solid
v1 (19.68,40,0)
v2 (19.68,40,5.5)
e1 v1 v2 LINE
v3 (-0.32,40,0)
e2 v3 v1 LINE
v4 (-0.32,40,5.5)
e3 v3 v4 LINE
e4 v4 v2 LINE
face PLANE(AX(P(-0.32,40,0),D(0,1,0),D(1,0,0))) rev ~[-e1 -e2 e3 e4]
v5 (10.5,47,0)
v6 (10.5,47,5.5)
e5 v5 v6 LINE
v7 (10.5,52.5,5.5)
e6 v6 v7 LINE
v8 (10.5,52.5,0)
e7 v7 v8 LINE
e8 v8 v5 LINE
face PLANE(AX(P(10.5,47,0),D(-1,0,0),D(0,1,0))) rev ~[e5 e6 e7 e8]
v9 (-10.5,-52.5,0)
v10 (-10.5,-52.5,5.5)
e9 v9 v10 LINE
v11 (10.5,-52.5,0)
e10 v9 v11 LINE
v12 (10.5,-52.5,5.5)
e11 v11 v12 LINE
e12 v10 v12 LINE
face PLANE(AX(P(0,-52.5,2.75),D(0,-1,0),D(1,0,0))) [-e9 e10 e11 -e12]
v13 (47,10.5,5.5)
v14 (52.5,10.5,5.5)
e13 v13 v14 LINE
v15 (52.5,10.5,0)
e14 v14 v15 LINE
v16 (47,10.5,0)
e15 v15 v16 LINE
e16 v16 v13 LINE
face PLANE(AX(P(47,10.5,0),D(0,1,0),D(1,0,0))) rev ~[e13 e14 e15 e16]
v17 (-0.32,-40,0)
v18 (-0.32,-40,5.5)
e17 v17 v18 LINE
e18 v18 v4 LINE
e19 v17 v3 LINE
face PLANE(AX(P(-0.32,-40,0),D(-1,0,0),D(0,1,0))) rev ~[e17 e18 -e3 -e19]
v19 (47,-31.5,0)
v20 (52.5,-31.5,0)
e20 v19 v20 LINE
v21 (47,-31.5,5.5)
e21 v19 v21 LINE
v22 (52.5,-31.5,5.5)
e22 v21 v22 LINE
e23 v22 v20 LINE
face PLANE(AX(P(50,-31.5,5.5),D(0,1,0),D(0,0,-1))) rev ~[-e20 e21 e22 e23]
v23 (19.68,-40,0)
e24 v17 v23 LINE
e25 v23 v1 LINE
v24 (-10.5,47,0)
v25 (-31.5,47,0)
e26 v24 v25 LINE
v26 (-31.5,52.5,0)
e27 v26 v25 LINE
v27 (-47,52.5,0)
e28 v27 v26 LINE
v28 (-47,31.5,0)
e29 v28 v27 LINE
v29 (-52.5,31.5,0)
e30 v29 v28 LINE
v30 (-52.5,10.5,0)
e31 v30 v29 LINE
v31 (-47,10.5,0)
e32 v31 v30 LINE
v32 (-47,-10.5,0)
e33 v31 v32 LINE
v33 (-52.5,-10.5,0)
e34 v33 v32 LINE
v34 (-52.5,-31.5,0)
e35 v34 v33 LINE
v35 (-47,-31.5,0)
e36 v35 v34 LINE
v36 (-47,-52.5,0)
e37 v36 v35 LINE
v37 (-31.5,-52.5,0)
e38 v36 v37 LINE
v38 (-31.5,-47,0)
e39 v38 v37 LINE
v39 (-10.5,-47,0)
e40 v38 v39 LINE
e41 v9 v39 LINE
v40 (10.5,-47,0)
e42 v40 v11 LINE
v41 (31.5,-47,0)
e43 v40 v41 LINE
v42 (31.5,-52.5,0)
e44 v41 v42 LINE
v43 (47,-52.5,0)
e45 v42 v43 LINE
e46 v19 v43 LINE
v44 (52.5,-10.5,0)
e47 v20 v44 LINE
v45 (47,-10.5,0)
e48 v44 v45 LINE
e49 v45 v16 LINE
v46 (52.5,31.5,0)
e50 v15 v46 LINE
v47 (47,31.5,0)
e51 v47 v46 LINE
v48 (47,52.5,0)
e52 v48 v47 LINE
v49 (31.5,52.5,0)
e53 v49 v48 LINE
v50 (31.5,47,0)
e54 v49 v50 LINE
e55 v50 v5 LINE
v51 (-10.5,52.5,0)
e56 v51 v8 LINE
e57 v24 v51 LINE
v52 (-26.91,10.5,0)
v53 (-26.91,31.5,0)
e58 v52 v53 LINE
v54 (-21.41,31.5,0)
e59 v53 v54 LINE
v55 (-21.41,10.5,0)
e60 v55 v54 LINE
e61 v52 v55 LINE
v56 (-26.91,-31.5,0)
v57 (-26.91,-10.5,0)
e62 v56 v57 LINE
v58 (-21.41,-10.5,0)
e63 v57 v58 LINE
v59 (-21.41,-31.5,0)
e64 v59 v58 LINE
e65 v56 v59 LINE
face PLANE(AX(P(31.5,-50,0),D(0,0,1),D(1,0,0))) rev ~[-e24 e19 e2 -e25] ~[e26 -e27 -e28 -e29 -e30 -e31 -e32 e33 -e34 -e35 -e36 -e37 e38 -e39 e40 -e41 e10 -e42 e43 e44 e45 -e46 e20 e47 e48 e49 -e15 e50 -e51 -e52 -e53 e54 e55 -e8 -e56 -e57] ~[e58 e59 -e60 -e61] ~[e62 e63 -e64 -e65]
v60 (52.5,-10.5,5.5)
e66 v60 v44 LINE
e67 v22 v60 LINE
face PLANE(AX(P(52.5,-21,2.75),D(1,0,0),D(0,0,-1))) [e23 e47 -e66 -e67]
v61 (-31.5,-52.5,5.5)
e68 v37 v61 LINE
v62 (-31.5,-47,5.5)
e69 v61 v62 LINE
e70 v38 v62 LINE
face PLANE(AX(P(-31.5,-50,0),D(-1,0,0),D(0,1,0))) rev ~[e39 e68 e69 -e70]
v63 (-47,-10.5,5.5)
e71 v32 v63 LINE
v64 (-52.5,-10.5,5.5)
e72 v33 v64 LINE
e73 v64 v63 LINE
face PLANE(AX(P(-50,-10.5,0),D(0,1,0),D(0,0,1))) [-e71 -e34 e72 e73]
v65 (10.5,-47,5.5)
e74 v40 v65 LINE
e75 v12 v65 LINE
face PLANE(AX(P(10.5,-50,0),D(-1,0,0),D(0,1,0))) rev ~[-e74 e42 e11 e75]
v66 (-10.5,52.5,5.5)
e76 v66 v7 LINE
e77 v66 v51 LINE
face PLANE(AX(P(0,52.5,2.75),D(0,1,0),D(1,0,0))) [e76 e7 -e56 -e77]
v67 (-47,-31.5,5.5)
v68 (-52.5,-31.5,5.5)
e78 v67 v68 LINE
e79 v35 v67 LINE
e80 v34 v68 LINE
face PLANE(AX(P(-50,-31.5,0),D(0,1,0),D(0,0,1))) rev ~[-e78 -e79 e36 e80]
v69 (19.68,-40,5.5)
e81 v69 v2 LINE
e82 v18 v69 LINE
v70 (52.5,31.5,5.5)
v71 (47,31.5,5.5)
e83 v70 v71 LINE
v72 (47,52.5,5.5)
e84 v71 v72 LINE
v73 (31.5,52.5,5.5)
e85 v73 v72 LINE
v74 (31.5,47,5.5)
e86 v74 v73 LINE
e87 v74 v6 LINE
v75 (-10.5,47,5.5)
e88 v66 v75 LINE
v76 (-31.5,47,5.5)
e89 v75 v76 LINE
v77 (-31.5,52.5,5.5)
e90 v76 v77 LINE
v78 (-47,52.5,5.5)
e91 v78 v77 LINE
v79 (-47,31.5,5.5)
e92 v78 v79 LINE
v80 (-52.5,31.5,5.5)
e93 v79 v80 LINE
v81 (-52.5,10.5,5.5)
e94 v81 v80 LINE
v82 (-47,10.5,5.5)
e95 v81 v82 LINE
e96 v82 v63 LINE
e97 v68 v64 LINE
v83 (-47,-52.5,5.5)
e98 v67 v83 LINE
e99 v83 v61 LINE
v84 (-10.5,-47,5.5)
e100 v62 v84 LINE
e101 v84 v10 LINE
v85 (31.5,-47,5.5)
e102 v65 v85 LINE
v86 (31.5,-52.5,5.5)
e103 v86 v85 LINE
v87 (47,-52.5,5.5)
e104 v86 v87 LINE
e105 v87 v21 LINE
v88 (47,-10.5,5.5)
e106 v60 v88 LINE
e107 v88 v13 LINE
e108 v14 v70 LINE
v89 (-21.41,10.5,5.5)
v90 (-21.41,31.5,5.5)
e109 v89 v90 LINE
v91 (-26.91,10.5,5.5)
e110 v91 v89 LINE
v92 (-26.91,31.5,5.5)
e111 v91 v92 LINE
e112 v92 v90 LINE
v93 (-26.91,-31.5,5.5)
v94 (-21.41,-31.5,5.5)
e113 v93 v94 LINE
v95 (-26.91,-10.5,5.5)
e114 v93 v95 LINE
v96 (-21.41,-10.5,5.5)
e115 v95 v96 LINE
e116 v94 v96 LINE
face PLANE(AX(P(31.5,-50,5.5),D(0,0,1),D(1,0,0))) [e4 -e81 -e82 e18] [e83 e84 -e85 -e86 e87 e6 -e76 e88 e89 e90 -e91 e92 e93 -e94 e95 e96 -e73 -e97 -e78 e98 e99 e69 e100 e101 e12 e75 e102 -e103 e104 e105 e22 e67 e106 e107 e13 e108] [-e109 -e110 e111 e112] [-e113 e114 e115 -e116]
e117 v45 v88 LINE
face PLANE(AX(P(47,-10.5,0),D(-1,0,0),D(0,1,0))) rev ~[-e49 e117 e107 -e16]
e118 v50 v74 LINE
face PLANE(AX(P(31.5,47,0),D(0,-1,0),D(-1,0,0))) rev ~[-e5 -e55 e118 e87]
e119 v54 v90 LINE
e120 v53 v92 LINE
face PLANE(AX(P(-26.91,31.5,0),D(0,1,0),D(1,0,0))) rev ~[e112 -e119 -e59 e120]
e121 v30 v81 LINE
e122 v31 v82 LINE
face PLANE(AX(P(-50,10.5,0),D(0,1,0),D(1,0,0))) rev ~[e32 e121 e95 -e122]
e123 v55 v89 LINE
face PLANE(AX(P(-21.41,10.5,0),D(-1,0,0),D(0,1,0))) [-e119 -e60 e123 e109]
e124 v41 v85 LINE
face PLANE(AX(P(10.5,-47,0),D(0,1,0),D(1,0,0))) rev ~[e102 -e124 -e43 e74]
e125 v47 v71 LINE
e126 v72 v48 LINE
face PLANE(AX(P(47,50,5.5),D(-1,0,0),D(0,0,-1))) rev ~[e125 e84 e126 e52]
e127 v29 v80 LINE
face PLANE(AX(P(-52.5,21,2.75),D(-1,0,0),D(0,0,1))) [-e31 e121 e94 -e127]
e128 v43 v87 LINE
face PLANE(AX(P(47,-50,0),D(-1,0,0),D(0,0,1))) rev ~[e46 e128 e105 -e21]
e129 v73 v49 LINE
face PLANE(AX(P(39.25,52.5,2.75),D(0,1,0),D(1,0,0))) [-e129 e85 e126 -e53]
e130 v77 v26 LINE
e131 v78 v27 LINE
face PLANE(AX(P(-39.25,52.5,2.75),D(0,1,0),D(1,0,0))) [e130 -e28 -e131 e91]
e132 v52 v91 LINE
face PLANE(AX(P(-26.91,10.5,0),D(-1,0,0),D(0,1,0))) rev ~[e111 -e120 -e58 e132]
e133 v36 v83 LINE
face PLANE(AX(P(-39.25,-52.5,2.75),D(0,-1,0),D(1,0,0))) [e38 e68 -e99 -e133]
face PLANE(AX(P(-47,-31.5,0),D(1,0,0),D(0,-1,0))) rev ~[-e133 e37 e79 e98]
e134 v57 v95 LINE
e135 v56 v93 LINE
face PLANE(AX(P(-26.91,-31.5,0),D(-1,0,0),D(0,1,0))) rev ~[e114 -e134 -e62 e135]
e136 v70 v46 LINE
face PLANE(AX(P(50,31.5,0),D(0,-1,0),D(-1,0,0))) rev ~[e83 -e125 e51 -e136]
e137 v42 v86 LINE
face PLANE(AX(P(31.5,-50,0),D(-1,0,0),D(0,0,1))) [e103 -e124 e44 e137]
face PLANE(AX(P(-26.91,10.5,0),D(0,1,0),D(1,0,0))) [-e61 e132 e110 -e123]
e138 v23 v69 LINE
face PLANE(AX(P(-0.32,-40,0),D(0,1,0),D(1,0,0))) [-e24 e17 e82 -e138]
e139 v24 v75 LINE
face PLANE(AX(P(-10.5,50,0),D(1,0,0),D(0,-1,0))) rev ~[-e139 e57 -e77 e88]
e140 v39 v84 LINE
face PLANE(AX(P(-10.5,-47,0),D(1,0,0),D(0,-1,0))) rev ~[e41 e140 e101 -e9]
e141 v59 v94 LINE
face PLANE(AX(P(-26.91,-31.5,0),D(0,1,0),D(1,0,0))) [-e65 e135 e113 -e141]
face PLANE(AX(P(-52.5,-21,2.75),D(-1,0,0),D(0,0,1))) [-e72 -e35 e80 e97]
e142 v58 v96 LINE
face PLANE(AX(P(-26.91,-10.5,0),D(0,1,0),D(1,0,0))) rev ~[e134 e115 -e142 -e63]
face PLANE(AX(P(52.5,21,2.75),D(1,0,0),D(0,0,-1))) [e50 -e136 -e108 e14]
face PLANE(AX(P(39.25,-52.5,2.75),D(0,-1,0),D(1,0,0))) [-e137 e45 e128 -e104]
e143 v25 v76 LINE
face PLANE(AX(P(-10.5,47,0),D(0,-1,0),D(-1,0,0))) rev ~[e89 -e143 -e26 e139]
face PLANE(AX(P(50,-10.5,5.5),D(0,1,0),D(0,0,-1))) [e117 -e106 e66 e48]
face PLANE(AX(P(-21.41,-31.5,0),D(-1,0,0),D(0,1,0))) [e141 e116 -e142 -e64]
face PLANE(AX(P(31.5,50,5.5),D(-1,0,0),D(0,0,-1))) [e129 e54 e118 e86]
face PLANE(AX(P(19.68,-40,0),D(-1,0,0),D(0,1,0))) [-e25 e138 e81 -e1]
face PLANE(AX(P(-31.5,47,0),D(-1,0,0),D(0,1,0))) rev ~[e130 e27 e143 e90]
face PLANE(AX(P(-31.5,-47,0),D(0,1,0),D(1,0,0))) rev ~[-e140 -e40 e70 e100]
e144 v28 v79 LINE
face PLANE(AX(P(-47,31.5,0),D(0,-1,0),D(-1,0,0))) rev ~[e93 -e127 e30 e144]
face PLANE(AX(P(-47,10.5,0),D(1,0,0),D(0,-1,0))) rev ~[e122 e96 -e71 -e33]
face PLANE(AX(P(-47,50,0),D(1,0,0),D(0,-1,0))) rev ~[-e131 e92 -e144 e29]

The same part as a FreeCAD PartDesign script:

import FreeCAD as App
import Part
import Sketcher
from FreeCAD import Vector


def add_polygon(sketch, points):
    """Adds a closed chain of lines whose ends are joined by coincident constraints."""
    first, n = sketch.GeometryCount, len(points)
    for a, b in zip(points, points[1:] + points[:1]):
        sketch.addGeometry(Part.LineSegment(App.Vector(*a, 0), App.Vector(*b, 0)), False)
    for i in range(n):
        sketch.addConstraint(Sketcher.Constraint("Coincident", first + i, 2, first + (i + 1) % n, 1))

doc = App.newDocument("Part")
body = doc.addObject("PartDesign::Body", "Body")

sketch1 = doc.addObject("Sketcher::SketchObject", "Sketch")
body.addObject(sketch1)
sketch1.AttachmentSupport = (doc.XY_Plane, [""])
sketch1.MapMode = "FlatFace"
add_polygon(sketch1, [(-47, 50), (-47, 31.5), (-50, 31.5), (-50, 10.5), (-47, 10.5), (-47, -10.5), (-50, -10.5), (-50, -31.5), (-47, -31.5), (-47, -50), (-31.5, -50), (-31.5, -47), (-10.5, -47), (-10.5, -50), (10.5, -50), (10.5, -47), (31.5, -47), (31.5, -50), (47, -50), (47, -31.5), (50, -31.5), (50, -10.5), (47, -10.5), (47, 10.5), (50, 10.5), (50, 31.5), (47, 31.5), (47, 50), (31.5, 50), (31.5, 47), (10.5, 47), (10.5, 50), (-10.5, 50), (-10.5, 47), (-31.5, 47), (-31.5, 50)])
add_polygon(sketch1, [(-21.4, -31.5), (-26.9, -31.5), (-26.9, -10.5), (-21.4, -10.5)])
add_polygon(sketch1, [(-21.4, 10.5), (-26.9, 10.5), (-26.9, 31.5), (-21.4, 31.5)])
add_polygon(sketch1, [(19.7, -40), (-0.3, -40), (-0.3, 40), (19.7, 40)])
sketch1.addConstraint(Sketcher.Constraint("Vertical", 0))
sketch1.addConstraint(Sketcher.Constraint("Horizontal", 1))
sketch1.addConstraint(Sketcher.Constraint("Vertical", 2))
sketch1.addConstraint(Sketcher.Constraint("Horizontal", 3))
sketch1.addConstraint(Sketcher.Constraint("Vertical", 4))
sketch1.addConstraint(Sketcher.Constraint("Horizontal", 5))
sketch1.addConstraint(Sketcher.Constraint("Vertical", 6))
sketch1.addConstraint(Sketcher.Constraint("Horizontal", 7))
sketch1.addConstraint(Sketcher.Constraint("Vertical", 8))
sketch1.addConstraint(Sketcher.Constraint("Horizontal", 9))
sketch1.addConstraint(Sketcher.Constraint("Vertical", 10))
sketch1.addConstraint(Sketcher.Constraint("Horizontal", 11))
sketch1.addConstraint(Sketcher.Constraint("Vertical", 12))
sketch1.addConstraint(Sketcher.Constraint("Horizontal", 13))
sketch1.addConstraint(Sketcher.Constraint("Vertical", 14))
sketch1.addConstraint(Sketcher.Constraint("Horizontal", 15))
sketch1.addConstraint(Sketcher.Constraint("Vertical", 16))
sketch1.addConstraint(Sketcher.Constraint("Horizontal", 17))
sketch1.addConstraint(Sketcher.Constraint("Vertical", 18))
sketch1.addConstraint(Sketcher.Constraint("Horizontal", 19))
sketch1.addConstraint(Sketcher.Constraint("Vertical", 20))
sketch1.addConstraint(Sketcher.Constraint("Horizontal", 21))
sketch1.addConstraint(Sketcher.Constraint("Vertical", 22))
sketch1.addConstraint(Sketcher.Constraint("Horizontal", 23))
sketch1.addConstraint(Sketcher.Constraint("Vertical", 24))
sketch1.addConstraint(Sketcher.Constraint("Horizontal", 25))
sketch1.addConstraint(Sketcher.Constraint("Vertical", 26))
sketch1.addConstraint(Sketcher.Constraint("Horizontal", 27))
sketch1.addConstraint(Sketcher.Constraint("Vertical", 28))
sketch1.addConstraint(Sketcher.Constraint("Horizontal", 29))
sketch1.addConstraint(Sketcher.Constraint("Vertical", 30))
sketch1.addConstraint(Sketcher.Constraint("Horizontal", 31))
sketch1.addConstraint(Sketcher.Constraint("Vertical", 32))
sketch1.addConstraint(Sketcher.Constraint("Horizontal", 33))
sketch1.addConstraint(Sketcher.Constraint("Vertical", 34))
sketch1.addConstraint(Sketcher.Constraint("Horizontal", 35))
sketch1.addConstraint(Sketcher.Constraint("Horizontal", 36))
sketch1.addConstraint(Sketcher.Constraint("Vertical", 37))
sketch1.addConstraint(Sketcher.Constraint("Horizontal", 38))
sketch1.addConstraint(Sketcher.Constraint("Vertical", 39))
sketch1.addConstraint(Sketcher.Constraint("Horizontal", 40))
sketch1.addConstraint(Sketcher.Constraint("Vertical", 41))
sketch1.addConstraint(Sketcher.Constraint("Horizontal", 42))
sketch1.addConstraint(Sketcher.Constraint("Vertical", 43))
sketch1.addConstraint(Sketcher.Constraint("Horizontal", 44))
sketch1.addConstraint(Sketcher.Constraint("Vertical", 45))
sketch1.addConstraint(Sketcher.Constraint("Horizontal", 46))
sketch1.addConstraint(Sketcher.Constraint("Vertical", 47))
sketch1.addConstraint(Sketcher.Constraint("Symmetric", 0, 2, 18, 2, -1, 1))
sketch1.addConstraint(Sketcher.Constraint("Symmetric", 2, 2, 20, 2, -1, 1))
sketch1.addConstraint(Sketcher.Constraint("Symmetric", 4, 2, 22, 2, -1, 1))
sketch1.addConstraint(Sketcher.Constraint("Symmetric", 6, 2, 24, 2, -1, 1))
sketch1.addConstraint(Sketcher.Constraint("Symmetric", 8, 2, 26, 2, -1, 1))
sketch1.addConstraint(Sketcher.Constraint("Symmetric", 10, 2, 28, 2, -1, 1))
sketch1.addConstraint(Sketcher.Constraint("Symmetric", 12, 2, 30, 2, -1, 1))
sketch1.addConstraint(Sketcher.Constraint("Symmetric", 14, 2, 32, 2, -1, 1))
sketch1.addConstraint(Sketcher.Constraint("Symmetric", 16, 2, 34, 2, -1, 1))
sketch1.addConstraint(Sketcher.Constraint("Symmetric", 11, 2, 14, 2, -2))
sketch1.addConstraint(Sketcher.Constraint("Symmetric", 9, 2, 16, 2, -2))
sketch1.addConstraint(Sketcher.Constraint("Symmetric", 7, 2, 18, 2, -2))
sketch1.addConstraint(Sketcher.Constraint("Symmetric", 5, 2, 20, 2, -2))
sketch1.addConstraint(Sketcher.Constraint("Symmetric", 37, 2, 40, 2, -1))
sketch1.addConstraint(Sketcher.Constraint("Symmetric", 39, 2, 42, 2, -1))
sketch1.addConstraint(Sketcher.Constraint("Horizontal", 9, 2, 12, 2))
sketch1.addConstraint(Sketcher.Constraint("Horizontal", 19, 2, 36, 2))
sketch1.addConstraint(Sketcher.Constraint("Horizontal", 21, 2, 37, 2))
sketch1.addConstraint(Sketcher.Constraint("Vertical", 0, 2, 3, 2))
sketch1.addConstraint(Sketcher.Constraint("Equal", 11, 13))
sketch1.addConstraint(Sketcher.Constraint("Equal", 33, 2))
sketch1.addConstraint(Sketcher.Constraint("Equal", 2, 4))
sketch1.addConstraint(Sketcher.Constraint("Equal", 25, 10))
sketch1.addConstraint(Sketcher.Constraint("DistanceX", 1, 2, 1, 1, 3.0))
sketch1.addConstraint(Sketcher.Constraint("DistanceX", 11, 1, 11, 2, 21.0))
sketch1.addConstraint(Sketcher.Constraint("DistanceX", 44, 2, 44, 1, 20.0))
sketch1.addConstraint(Sketcher.Constraint("DistanceY", 45, 1, 45, 2, 80.0))
sketch1.addConstraint(Sketcher.Constraint("DistanceX", 9, 1, 9, 2, 15.5))
sketch1.addConstraint(Sketcher.Constraint("DistanceX", 36, 2, 36, 1, 5.5))
sketch1.addConstraint(Sketcher.Constraint("DistanceY", 0, 2, 0, 1, 18.5))
sketch1.addConstraint(Sketcher.Constraint("DistanceY", 44, 2, -1, 1, 40.0))
sketch1.addConstraint(Sketcher.Constraint("DistanceX", 36, 2, -1, 1, 26.91))
sketch1.addConstraint(Sketcher.Constraint("DistanceX", 44, 2, -1, 1, 0.32))
pad1 = doc.addObject("PartDesign::Pad", "Pad")
body.addObject(pad1)
pad1.Profile = sketch1
pad1.Length = 5.5

sketch2 = doc.addObject("Sketcher::SketchObject", "Sketch001")
body.addObject(sketch2)
sketch2.AttachmentSupport = (doc.YZ_Plane, [""])
sketch2.MapMode = "FlatFace"
sketch2.AttachmentOffset = App.Placement(Vector(0, 0, -50), App.Rotation())
add_polygon(sketch2, [(-10, 0), (-32, 0), (-32, 6), (-10, 6)])
add_polygon(sketch2, [(32, 0), (10, 0), (10, 6), (32, 6)])
sketch2.addConstraint(Sketcher.Constraint("Horizontal", 0))
sketch2.addConstraint(Sketcher.Constraint("Vertical", 1))
sketch2.addConstraint(Sketcher.Constraint("Horizontal", 2))
sketch2.addConstraint(Sketcher.Constraint("Vertical", 3))
sketch2.addConstraint(Sketcher.Constraint("Horizontal", 4))
sketch2.addConstraint(Sketcher.Constraint("Vertical", 5))
sketch2.addConstraint(Sketcher.Constraint("Horizontal", 6))
sketch2.addConstraint(Sketcher.Constraint("Vertical", 7))
sketch2.addConstraint(Sketcher.Constraint("Symmetric", 3, 2, 4, 2, -1, 1))
sketch2.addConstraint(Sketcher.Constraint("Symmetric", 1, 2, 6, 2, -2))
sketch2.addConstraint(Sketcher.Constraint("PointOnObject", 0, 2, -1))
sketch2.addConstraint(Sketcher.Constraint("DistanceX", 0, 2, 0, 1, 21.0))
sketch2.addConstraint(Sketcher.Constraint("DistanceY", 1, 1, 1, 2, 5.5))
sketch2.addConstraint(Sketcher.Constraint("DistanceX", 3, 2, 4, 2, 21.0))
pad2 = doc.addObject("PartDesign::Pad", "Pad001")
body.addObject(pad2)
pad2.Profile = sketch2
pad2.Length = 2.5
pad2.Reversed = True

sketch3 = doc.addObject("Sketcher::SketchObject", "Sketch002")
body.addObject(sketch3)
sketch3.AttachmentSupport = (doc.XZ_Plane, [""])
sketch3.MapMode = "FlatFace"
sketch3.AttachmentOffset = App.Placement(Vector(0, 0, -50), App.Rotation())
add_polygon(sketch3, [(32, 0), (32, 6), (47, 6), (47, 0)])
add_polygon(sketch3, [(-10, 0), (-10, 6), (10, 6), (10, 0)])
add_polygon(sketch3, [(-47, 0), (-47, 6), (-32, 6), (-32, 0)])
sketch3.addConstraint(Sketcher.Constraint("Vertical", 0))
sketch3.addConstraint(Sketcher.Constraint("Horizontal", 1))
sketch3.addConstraint(Sketcher.Constraint("Vertical", 2))
sketch3.addConstraint(Sketcher.Constraint("Horizontal", 3))
sketch3.addConstraint(Sketcher.Constraint("Vertical", 4))
sketch3.addConstraint(Sketcher.Constraint("Horizontal", 5))
sketch3.addConstraint(Sketcher.Constraint("Vertical", 6))
sketch3.addConstraint(Sketcher.Constraint("Horizontal", 7))
sketch3.addConstraint(Sketcher.Constraint("Vertical", 8))
sketch3.addConstraint(Sketcher.Constraint("Horizontal", 9))
sketch3.addConstraint(Sketcher.Constraint("Vertical", 10))
sketch3.addConstraint(Sketcher.Constraint("Horizontal", 11))
sketch3.addConstraint(Sketcher.Constraint("Symmetric", 6, 2, 7, 2, -1, 1))
sketch3.addConstraint(Sketcher.Constraint("Symmetric", 3, 2, 10, 2, -1, 1))
sketch3.addConstraint(Sketcher.Constraint("Symmetric", 1, 2, 8, 2, -2))
sketch3.addConstraint(Sketcher.Constraint("PointOnObject", 2, 2, -1))
sketch3.addConstraint(Sketcher.Constraint("Horizontal", 1, 2, 4, 2))
sketch3.addConstraint(Sketcher.Constraint("DistanceX", 5, 1, 5, 2, 21.0))
sketch3.addConstraint(Sketcher.Constraint("DistanceX", 1, 1, 1, 2, 15.5))
sketch3.addConstraint(Sketcher.Constraint("DistanceY", 0, 1, 0, 2, 5.5))
sketch3.addConstraint(Sketcher.Constraint("DistanceX", -1, 1, 1, 2, 47.0))
pad3 = doc.addObject("PartDesign::Pad", "Pad002")
body.addObject(pad3)
pad3.Profile = sketch3
pad3.Length = 2.5
pad3.Reversed = True

sketch4 = doc.addObject("Sketcher::SketchObject", "Sketch003")
body.addObject(sketch4)
sketch4.AttachmentSupport = (doc.YZ_Plane, [""])
sketch4.MapMode = "FlatFace"
sketch4.AttachmentOffset = App.Placement(Vector(0, 0, 50), App.Rotation())
add_polygon(sketch4, [(-10, 6), (-32, 6), (-32, 0), (-10, 0)])
add_polygon(sketch4, [(32, 6), (10, 6), (10, 0), (32, 0)])
sketch4.addConstraint(Sketcher.Constraint("Horizontal", 0))
sketch4.addConstraint(Sketcher.Constraint("Vertical", 1))
sketch4.addConstraint(Sketcher.Constraint("Horizontal", 2))
sketch4.addConstraint(Sketcher.Constraint("Vertical", 3))
sketch4.addConstraint(Sketcher.Constraint("Horizontal", 4))
sketch4.addConstraint(Sketcher.Constraint("Vertical", 5))
sketch4.addConstraint(Sketcher.Constraint("Horizontal", 6))
sketch4.addConstraint(Sketcher.Constraint("Vertical", 7))
sketch4.addConstraint(Sketcher.Constraint("Symmetric", 2, 2, 5, 2, -1, 1))
sketch4.addConstraint(Sketcher.Constraint("Symmetric", 1, 2, 6, 2, -2))
sketch4.addConstraint(Sketcher.Constraint("Horizontal", 3, 2, 4, 2))
sketch4.addConstraint(Sketcher.Constraint("DistanceX", 0, 2, 0, 1, 21.0))
sketch4.addConstraint(Sketcher.Constraint("DistanceY", 1, 2, 1, 1, 5.5))
sketch4.addConstraint(Sketcher.Constraint("DistanceX", 3, 2, 4, 2, 21.0))
pad4 = doc.addObject("PartDesign::Pad", "Pad003")
body.addObject(pad4)
pad4.Profile = sketch4
pad4.Length = 2.5

sketch5 = doc.addObject("Sketcher::SketchObject", "Sketch004")
body.addObject(sketch5)
sketch5.AttachmentSupport = (doc.XZ_Plane, [""])
sketch5.MapMode = "FlatFace"
sketch5.AttachmentOffset = App.Placement(Vector(0, 0, 50), App.Rotation())
add_polygon(sketch5, [(32, 6), (32, 0), (47, 0), (47, 6)])
add_polygon(sketch5, [(-10, 6), (-10, 0), (10, 0), (10, 6)])
add_polygon(sketch5, [(-47, 6), (-47, 0), (-32, 0), (-32, 6)])
sketch5.addConstraint(Sketcher.Constraint("Vertical", 0))
sketch5.addConstraint(Sketcher.Constraint("Horizontal", 1))
sketch5.addConstraint(Sketcher.Constraint("Vertical", 2))
sketch5.addConstraint(Sketcher.Constraint("Horizontal", 3))
sketch5.addConstraint(Sketcher.Constraint("Vertical", 4))
sketch5.addConstraint(Sketcher.Constraint("Horizontal", 5))
sketch5.addConstraint(Sketcher.Constraint("Vertical", 6))
sketch5.addConstraint(Sketcher.Constraint("Horizontal", 7))
sketch5.addConstraint(Sketcher.Constraint("Vertical", 8))
sketch5.addConstraint(Sketcher.Constraint("Horizontal", 9))
sketch5.addConstraint(Sketcher.Constraint("Vertical", 10))
sketch5.addConstraint(Sketcher.Constraint("Horizontal", 11))
sketch5.addConstraint(Sketcher.Constraint("Symmetric", 4, 2, 5, 2, -1, 1))
sketch5.addConstraint(Sketcher.Constraint("Symmetric", 1, 2, 8, 2, -1, 1))
sketch5.addConstraint(Sketcher.Constraint("Symmetric", 0, 2, 9, 2, -2))
sketch5.addConstraint(Sketcher.Constraint("Horizontal", 3, 2, 6, 2))
sketch5.addConstraint(Sketcher.Constraint("Horizontal", 7, 2, 10, 2))
sketch5.addConstraint(Sketcher.Constraint("DistanceX", 5, 1, 5, 2, 21.0))
sketch5.addConstraint(Sketcher.Constraint("DistanceX", 1, 1, 1, 2, 15.5))
sketch5.addConstraint(Sketcher.Constraint("DistanceY", 0, 2, 0, 1, 5.5))
sketch5.addConstraint(Sketcher.Constraint("DistanceX", -1, 1, 1, 2, 47.0))
pad5 = doc.addObject("PartDesign::Pad", "Pad004")
body.addObject(pad5)
pad5.Profile = sketch5
pad5.Length = 2.5

doc.recompute()
